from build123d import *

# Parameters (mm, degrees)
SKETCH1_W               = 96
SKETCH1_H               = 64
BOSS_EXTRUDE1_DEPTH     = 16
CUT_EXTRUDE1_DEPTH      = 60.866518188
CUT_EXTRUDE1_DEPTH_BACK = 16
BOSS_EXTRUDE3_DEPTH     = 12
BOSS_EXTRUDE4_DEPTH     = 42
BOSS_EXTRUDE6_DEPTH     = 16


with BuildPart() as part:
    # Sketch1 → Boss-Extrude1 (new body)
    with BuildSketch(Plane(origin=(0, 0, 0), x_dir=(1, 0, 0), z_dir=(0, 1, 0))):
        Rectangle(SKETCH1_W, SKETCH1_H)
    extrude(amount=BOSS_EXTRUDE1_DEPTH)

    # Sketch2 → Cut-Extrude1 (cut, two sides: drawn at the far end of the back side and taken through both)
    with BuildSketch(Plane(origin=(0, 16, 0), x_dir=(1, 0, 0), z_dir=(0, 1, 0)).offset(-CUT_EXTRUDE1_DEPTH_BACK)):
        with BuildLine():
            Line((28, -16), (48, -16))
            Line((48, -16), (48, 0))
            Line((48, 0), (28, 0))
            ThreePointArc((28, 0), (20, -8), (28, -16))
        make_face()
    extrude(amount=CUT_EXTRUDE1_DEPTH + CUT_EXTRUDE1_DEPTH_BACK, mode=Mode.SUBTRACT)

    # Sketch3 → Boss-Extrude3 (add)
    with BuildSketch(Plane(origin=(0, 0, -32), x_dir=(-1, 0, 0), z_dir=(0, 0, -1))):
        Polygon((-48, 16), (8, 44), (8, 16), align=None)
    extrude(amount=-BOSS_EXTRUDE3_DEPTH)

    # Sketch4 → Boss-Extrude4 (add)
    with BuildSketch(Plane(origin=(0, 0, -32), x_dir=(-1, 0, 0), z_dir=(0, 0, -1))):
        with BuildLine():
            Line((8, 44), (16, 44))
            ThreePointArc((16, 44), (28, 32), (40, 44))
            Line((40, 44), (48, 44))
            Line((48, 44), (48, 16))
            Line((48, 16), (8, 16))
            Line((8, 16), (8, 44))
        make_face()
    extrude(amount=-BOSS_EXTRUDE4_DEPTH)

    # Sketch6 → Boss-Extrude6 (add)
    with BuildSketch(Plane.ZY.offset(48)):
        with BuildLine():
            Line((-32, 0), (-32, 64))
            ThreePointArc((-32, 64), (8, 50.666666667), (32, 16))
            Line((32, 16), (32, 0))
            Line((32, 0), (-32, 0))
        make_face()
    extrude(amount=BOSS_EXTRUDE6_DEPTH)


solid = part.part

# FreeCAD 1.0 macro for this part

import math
import FreeCAD as App
import Part
import Sketcher

V = App.Vector

doc = App.newDocument("Part")
params = doc.addObject("Spreadsheet::Sheet", "Params")
for row, (alias, value) in enumerate([
    ("sketch1_width", "96 mm"),
    ("sketch1_height", "64 mm"),
    ("pad1_length", "16 mm"),
    ("sketch2_radius", "8 mm"),
    ("sketch2_width", "20 mm"),
    ("sketch3_width", "56 mm"),
    ("sketch3_height", "28 mm"),
    ("pad2_length", "12 mm"),
    ("sketch4_radius", "12 mm"),
    ("sketch4_width", "8 mm"),
    ("sketch4_height", "28 mm"),
    ("pad3_length", "42 mm"),
    ("sketch5_width", "64 mm"),
    ("sketch5_width2", "16 mm"),
    ("pad4_length", "16 mm"),
], start=1):
    params.set(f"A{row}", alias)
    params.set(f"B{row}", "=" + value)
    params.setAlias(f"B{row}", alias)

body = doc.addObject("PartDesign::Body", "Body")

# Sketch on XZ plane
sketch1 = body.newObject("Sketcher::SketchObject", "Sketch")
sketch1.AttachmentSupport = (doc.getObject("XZ_Plane"), [""])
sketch1.MapMode = "FlatFace"
sketch1.addGeometry([
    Part.LineSegment(V(-48, -32, 0), V(-48, 32, 0)),
    Part.LineSegment(V(-48, 32, 0), V(48, 32, 0)),
    Part.LineSegment(V(48, 32, 0), V(48, -32, 0)),
    Part.LineSegment(V(48, -32, 0), V(-48, -32, 0)),
], False)
sketch1.addConstraint([
    Sketcher.Constraint("Coincident", 0, 2, 1, 1),
    Sketcher.Constraint("Coincident", 1, 2, 2, 1),
    Sketcher.Constraint("Coincident", 2, 2, 3, 1),
    Sketcher.Constraint("Coincident", 3, 2, 0, 1),
    Sketcher.Constraint("Vertical", 0),
    Sketcher.Constraint("Horizontal", 1),
    Sketcher.Constraint("Vertical", 2),
    Sketcher.Constraint("Horizontal", 3),
    Sketcher.Constraint("Symmetric", 0, 2, 2, 2, -1, 1),
    Sketcher.Constraint("DistanceX", 1, 1, 1, 2, 96.0),
    Sketcher.Constraint("DistanceY", 0, 1, 0, 2, 64.0),
])
sketch1.setExpression("Constraints[9]", "Params.sketch1_width")
sketch1.setExpression("Constraints[10]", "Params.sketch1_height")
pad1 = body.newObject("PartDesign::Pad", "Pad")
pad1.Profile = sketch1
pad1.setExpression("Length", "Params.pad1_length")
pad1.Reversed = True

# Sketch on XZ plane
sketch2 = body.newObject("Sketcher::SketchObject", "Sketch001")
sketch2.AttachmentSupport = (doc.getObject("XZ_Plane"), [""])
sketch2.MapMode = "FlatFace"
sketch2.AttachmentOffset = App.Placement(V(0, 0, -16), App.Rotation())
sketch2.addGeometry([
    Part.LineSegment(V(28, 16, 0), V(48, 16, 0)),
    Part.LineSegment(V(48, 16, 0), V(48, 0, 0)),
    Part.LineSegment(V(48, 0, 0), V(28, 0, 0)),
    Part.ArcOfCircle(Part.Circle(V(28, 8, 0), V(0, 0, 1), 8), math.radians(90), math.radians(270)),
], False)
sketch2.addConstraint([
    Sketcher.Constraint("Coincident", 0, 2, 1, 1),
    Sketcher.Constraint("Coincident", 1, 2, 2, 1),
    Sketcher.Constraint("Tangent", 2, 2, 3, 2),
    Sketcher.Constraint("Tangent", 3, 1, 0, 1),
    Sketcher.Constraint("Horizontal", 0),
    Sketcher.Constraint("Vertical", 1),
    Sketcher.Constraint("Horizontal", 2),
    Sketcher.Constraint("PointOnObject", 1, 2, -1),
    Sketcher.Constraint("Radius", 3, 8.0),
    Sketcher.Constraint("DistanceX", 0, 1, 0, 2, 20.0),
    Sketcher.Constraint("DistanceX", -1, 1, 3, 3, 28.0),
])
sketch2.setExpression("Constraints[8]", "Params.sketch2_radius")
sketch2.setExpression("Constraints[9]", "Params.sketch2_width")
pocket1 = body.newObject("PartDesign::Pocket", "Pocket")
pocket1.Profile = sketch2
pocket1.Type = "ThroughAll"
pocket1.Midplane = True

# Sketch on XY plane
sketch3 = body.newObject("Sketcher::SketchObject", "Sketch002")
sketch3.AttachmentSupport = (doc.getObject("XY_Plane"), [""])
sketch3.MapMode = "FlatFace"
sketch3.AttachmentOffset = App.Placement(V(0, 0, -32), App.Rotation())
sketch3.addGeometry([
    Part.LineSegment(V(-8, 44, 0), V(48, 16, 0)),
    Part.LineSegment(V(48, 16, 0), V(-8, 16, 0)),
    Part.LineSegment(V(-8, 16, 0), V(-8, 44, 0)),
], False)
sketch3.addConstraint([
    Sketcher.Constraint("Coincident", 0, 2, 1, 1),
    Sketcher.Constraint("Coincident", 1, 2, 2, 1),
    Sketcher.Constraint("Coincident", 2, 2, 0, 1),
    Sketcher.Constraint("Horizontal", 1),
    Sketcher.Constraint("Vertical", 2),
    Sketcher.Constraint("DistanceX", 1, 2, 1, 1, 56.0),
    Sketcher.Constraint("DistanceY", 2, 1, 2, 2, 28.0),
    Sketcher.Constraint("DistanceX", -1, 1, 0, 2, 48.0),
    Sketcher.Constraint("DistanceY", -1, 1, 0, 2, 16.0),
])
sketch3.setExpression("Constraints[5]", "Params.sketch3_width")
sketch3.setExpression("Constraints[6]", "Params.sketch3_height")
pad2 = body.newObject("PartDesign::Pad", "Pad001")
pad2.Profile = sketch3
pad2.setExpression("Length", "Params.pad2_length")

# Sketch on XY plane
sketch4 = body.newObject("Sketcher::SketchObject", "Sketch003")
sketch4.AttachmentSupport = (doc.getObject("XY_Plane"), [""])
sketch4.MapMode = "FlatFace"
sketch4.AttachmentOffset = App.Placement(V(0, 0, -32), App.Rotation())
sketch4.addGeometry([
    Part.LineSegment(V(-16, 44, 0), V(-8, 44, 0)),  # 0
    Part.LineSegment(V(-8, 44, 0), V(-8, 16, 0)),  # 1
    Part.LineSegment(V(-8, 16, 0), V(-48, 16, 0)),  # 2
    Part.LineSegment(V(-48, 16, 0), V(-48, 44, 0)),  # 3
    Part.LineSegment(V(-48, 44, 0), V(-40, 44, 0)),  # 4
    Part.ArcOfCircle(Part.Circle(V(-28, 44, 0), V(0, 0, 1), 12), math.radians(180), math.radians(360)),  # 5
], False)
sketch4.addConstraint([
    Sketcher.Constraint("Coincident", 0, 2, 1, 1),
    Sketcher.Constraint("Coincident", 1, 2, 2, 1),
    Sketcher.Constraint("Coincident", 2, 2, 3, 1),
    Sketcher.Constraint("Coincident", 3, 2, 4, 1),
    Sketcher.Constraint("Coincident", 4, 2, 5, 1),
    Sketcher.Constraint("Coincident", 5, 2, 0, 1),
    Sketcher.Constraint("Horizontal", 0),
    Sketcher.Constraint("Vertical", 1),
    Sketcher.Constraint("Horizontal", 2),
    Sketcher.Constraint("Vertical", 3),
    Sketcher.Constraint("Horizontal", 4),
    Sketcher.Constraint("Horizontal", 5, 3, 0, 2),
    Sketcher.Constraint("Horizontal", 0, 2, 3, 2),
    Sketcher.Constraint("Equal", 0, 4),
    Sketcher.Constraint("Radius", 5, 12.0),
    Sketcher.Constraint("DistanceX", 0, 1, 0, 2, 8.0),
    Sketcher.Constraint("DistanceY", 1, 2, 1, 1, 28.0),
    Sketcher.Constraint("DistanceX", 5, 3, -1, 1, 28.0),
    Sketcher.Constraint("DistanceY", -1, 1, 5, 3, 44.0),
])
sketch4.setExpression("Constraints[14]", "Params.sketch4_radius")
sketch4.setExpression("Constraints[15]", "Params.sketch4_width")
sketch4.setExpression("Constraints[16]", "Params.sketch4_height")
pad3 = body.newObject("PartDesign::Pad", "Pad002")
pad3.Profile = sketch4
pad3.setExpression("Length", "Params.pad3_length")

# Sketch on YZ plane
sketch5 = body.newObject("Sketcher::SketchObject", "Sketch004")
sketch5.AttachmentSupport = (doc.getObject("YZ_Plane"), [""])
sketch5.MapMode = "FlatFace"
sketch5.AttachmentOffset = App.Placement(V(0, 0, -48), App.Rotation())
sketch5.addGeometry([
    Part.LineSegment(V(64, -32, 0), V(0, -32, 0)),
    Part.LineSegment(V(0, -32, 0), V(0, 32, 0)),
    Part.LineSegment(V(0, 32, 0), V(16, 32, 0)),
    Part.ArcOfCircle(Part.Circle(V(-3, -32, 0), V(0, 0, 1), 67), math.radians(0), math.radians(74)),
], False)
sketch5.addConstraint([
    Sketcher.Constraint("Coincident", 0, 2, 1, 1),
    Sketcher.Constraint("Coincident", 1, 2, 2, 1),
    Sketcher.Constraint("Coincident", 2, 2, 3, 2),
    Sketcher.Constraint("Coincident", 3, 1, 0, 1),
    Sketcher.Constraint("Horizontal", 0),
    Sketcher.Constraint("Vertical", 1),
    Sketcher.Constraint("Horizontal", 2),
    Sketcher.Constraint("Symmetric", 0, 2, 1, 2, -1, 1),
    Sketcher.Constraint("Horizontal", 3, 3, 0, 2),
    Sketcher.Constraint("Equal", 0, 1),
    Sketcher.Constraint("DistanceX", 0, 2, 0, 1, 64.0),
    Sketcher.Constraint("DistanceX", 2, 1, 2, 2, 16.0),
])
sketch5.setExpression("Constraints[10]", "Params.sketch5_width")
sketch5.setExpression("Constraints[11]", "Params.sketch5_width2")
pad4 = body.newObject("PartDesign::Pad", "Pad003")
pad4.Profile = sketch5
pad4.setExpression("Length", "Params.pad4_length")
pad4.Reversed = True

doc.recompute()
